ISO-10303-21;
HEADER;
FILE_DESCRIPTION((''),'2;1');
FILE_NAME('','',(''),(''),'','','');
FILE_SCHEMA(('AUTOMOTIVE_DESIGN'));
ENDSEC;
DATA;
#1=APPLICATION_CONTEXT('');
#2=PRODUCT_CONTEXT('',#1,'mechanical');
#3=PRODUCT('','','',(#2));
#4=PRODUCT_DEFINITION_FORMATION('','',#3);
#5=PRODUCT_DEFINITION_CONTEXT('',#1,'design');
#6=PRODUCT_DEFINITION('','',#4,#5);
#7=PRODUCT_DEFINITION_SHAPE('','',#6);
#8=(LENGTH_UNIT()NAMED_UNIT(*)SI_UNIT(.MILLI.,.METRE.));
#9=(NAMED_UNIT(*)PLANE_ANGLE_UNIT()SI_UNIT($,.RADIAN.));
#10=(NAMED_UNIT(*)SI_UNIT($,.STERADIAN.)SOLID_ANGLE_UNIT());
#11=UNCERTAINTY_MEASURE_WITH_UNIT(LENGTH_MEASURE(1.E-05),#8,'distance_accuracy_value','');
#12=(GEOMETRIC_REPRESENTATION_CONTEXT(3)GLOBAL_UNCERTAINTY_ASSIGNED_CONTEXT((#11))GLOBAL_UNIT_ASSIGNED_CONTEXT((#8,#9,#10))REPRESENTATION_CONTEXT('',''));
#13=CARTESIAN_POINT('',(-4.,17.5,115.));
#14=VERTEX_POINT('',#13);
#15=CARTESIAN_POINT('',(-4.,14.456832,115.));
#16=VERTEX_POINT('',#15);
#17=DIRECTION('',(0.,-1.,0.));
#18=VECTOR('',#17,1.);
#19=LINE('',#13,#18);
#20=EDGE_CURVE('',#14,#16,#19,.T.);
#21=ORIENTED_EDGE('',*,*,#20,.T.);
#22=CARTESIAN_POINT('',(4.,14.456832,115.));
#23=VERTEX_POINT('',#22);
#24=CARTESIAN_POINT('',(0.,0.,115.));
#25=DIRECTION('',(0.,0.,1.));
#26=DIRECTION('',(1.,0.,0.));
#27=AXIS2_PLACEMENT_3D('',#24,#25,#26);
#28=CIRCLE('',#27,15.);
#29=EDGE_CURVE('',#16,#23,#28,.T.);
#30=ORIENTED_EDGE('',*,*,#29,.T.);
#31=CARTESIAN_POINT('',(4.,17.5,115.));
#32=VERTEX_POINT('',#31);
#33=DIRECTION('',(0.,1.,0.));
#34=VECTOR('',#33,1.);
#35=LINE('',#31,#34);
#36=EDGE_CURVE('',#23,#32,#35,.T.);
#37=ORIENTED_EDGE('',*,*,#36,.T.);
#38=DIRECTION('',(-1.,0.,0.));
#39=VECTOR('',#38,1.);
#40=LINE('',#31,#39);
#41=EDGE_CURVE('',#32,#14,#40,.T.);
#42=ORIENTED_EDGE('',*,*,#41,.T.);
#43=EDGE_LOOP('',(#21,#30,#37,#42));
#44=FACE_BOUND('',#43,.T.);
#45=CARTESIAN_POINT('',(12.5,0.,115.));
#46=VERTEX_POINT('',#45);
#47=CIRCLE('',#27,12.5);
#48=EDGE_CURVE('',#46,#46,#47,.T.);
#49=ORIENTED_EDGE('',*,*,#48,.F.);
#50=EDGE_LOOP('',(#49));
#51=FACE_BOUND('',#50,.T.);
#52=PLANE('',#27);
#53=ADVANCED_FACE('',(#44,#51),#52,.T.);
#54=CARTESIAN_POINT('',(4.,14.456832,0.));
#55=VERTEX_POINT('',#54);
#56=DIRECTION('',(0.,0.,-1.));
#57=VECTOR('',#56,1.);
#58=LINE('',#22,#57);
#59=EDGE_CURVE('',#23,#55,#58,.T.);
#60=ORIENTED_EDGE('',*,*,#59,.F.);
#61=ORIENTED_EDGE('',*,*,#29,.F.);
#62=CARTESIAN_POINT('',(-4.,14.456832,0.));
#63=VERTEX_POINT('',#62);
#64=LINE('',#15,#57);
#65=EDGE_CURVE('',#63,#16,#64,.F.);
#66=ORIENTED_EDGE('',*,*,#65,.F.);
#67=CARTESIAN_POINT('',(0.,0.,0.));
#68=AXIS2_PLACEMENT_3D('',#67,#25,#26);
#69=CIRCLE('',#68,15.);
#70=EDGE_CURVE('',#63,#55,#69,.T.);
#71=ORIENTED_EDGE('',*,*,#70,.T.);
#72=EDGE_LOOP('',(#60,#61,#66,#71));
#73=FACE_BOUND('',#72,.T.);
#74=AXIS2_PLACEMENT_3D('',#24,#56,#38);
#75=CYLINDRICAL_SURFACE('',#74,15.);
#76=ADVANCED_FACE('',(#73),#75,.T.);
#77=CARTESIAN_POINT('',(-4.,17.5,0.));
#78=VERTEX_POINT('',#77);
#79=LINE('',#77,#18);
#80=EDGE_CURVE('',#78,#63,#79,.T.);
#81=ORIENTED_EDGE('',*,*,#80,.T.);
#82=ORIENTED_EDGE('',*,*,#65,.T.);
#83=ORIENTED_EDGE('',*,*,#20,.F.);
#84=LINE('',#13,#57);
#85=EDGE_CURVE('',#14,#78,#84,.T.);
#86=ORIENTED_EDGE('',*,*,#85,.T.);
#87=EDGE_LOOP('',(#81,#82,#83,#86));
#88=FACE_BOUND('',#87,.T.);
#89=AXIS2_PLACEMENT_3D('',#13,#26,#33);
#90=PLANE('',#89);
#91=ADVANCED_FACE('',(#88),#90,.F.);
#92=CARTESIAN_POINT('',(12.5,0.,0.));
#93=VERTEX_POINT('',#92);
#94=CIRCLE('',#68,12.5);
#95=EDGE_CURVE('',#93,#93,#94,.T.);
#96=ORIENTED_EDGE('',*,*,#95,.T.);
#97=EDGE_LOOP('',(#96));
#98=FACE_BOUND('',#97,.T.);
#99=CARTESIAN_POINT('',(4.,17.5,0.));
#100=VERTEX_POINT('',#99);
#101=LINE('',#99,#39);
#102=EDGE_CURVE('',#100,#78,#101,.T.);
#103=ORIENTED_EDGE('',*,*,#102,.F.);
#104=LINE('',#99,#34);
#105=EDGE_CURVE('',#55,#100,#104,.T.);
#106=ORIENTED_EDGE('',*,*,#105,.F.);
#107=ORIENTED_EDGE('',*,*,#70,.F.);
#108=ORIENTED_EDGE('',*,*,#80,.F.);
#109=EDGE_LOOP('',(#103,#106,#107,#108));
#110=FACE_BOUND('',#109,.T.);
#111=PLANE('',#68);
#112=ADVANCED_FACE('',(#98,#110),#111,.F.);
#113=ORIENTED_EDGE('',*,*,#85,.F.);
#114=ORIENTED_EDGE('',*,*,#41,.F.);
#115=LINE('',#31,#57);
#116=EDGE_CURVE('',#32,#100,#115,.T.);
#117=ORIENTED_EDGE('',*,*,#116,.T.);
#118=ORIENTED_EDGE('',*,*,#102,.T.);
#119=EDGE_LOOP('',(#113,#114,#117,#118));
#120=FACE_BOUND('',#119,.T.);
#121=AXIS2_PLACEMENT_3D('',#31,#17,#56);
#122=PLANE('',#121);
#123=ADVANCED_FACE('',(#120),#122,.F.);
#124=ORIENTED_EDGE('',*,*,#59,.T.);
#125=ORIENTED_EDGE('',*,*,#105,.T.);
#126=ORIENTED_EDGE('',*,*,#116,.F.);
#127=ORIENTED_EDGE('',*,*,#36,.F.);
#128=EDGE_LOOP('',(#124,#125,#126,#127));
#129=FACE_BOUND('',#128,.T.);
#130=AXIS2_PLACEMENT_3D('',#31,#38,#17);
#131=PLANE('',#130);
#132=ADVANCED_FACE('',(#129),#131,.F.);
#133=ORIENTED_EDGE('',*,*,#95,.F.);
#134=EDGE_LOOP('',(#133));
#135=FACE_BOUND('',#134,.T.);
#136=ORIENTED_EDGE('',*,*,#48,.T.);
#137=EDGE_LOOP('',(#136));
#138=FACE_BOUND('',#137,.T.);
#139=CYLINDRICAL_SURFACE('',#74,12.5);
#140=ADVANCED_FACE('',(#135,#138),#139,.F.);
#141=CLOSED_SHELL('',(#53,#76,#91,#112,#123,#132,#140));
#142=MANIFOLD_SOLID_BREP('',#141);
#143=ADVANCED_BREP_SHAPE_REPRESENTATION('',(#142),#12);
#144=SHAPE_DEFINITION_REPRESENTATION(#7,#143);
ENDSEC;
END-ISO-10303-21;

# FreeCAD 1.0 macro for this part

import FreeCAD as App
import Part
import Sketcher

V = App.Vector


def add_polygon(sketch, points):
    """Adds a closed chain of lines whose ends are joined by coincident constraints."""
    first, n = sketch.GeometryCount, len(points)
    for a, b in zip(points, points[1:] + points[:1]):
        sketch.addGeometry(Part.LineSegment(App.Vector(*a, 0), App.Vector(*b, 0)), False)
    for i in range(n):
        sketch.addConstraint(Sketcher.Constraint("Coincident", first + i, 2, first + (i + 1) % n, 1))

doc = App.newDocument("Part")
params = doc.addObject("Spreadsheet::Sheet", "Params")
for row, (alias, value) in enumerate([
    ("sketch1_diameter", "30 mm"),
    ("sketch1_diameter2", "25 mm"),
    ("pad1_length", "115 mm"),
    ("sketch2_width", "8 mm"),
    ("sketch2_height", "5 mm"),
    ("pad2_length", "115 mm"),
], start=1):
    params.set(f"A{row}", alias)
    params.set(f"B{row}", "=" + value)
    params.setAlias(f"B{row}", alias)

body = doc.addObject("PartDesign::Body", "Body")

sketch1 = doc.addObject("Sketcher::SketchObject", "Sketch")
body.addObject(sketch1)
sketch1.AttachmentSupport = (doc.XY_Plane, [""])
sketch1.MapMode = "FlatFace"
sketch1.addGeometry(Part.Circle(V(0, 0, 0), V(0, 0, 1), 15), False)
sketch1.addGeometry(Part.Circle(V(0, 0, 0), V(0, 0, 1), 12), False)
sketch1.addConstraint(Sketcher.Constraint("Coincident", 0, 3, -1, 1))
sketch1.addConstraint(Sketcher.Constraint("Coincident", 1, 3, -1, 1))
sketch1.addConstraint(Sketcher.Constraint("Diameter", 0, 30.0))
sketch1.addConstraint(Sketcher.Constraint("Diameter", 1, 25.0))
sketch1.setExpression("Constraints[2]", "Params.sketch1_diameter")
sketch1.setExpression("Constraints[3]", "Params.sketch1_diameter2")
pad1 = doc.addObject("PartDesign::Pad", "Pad")
body.addObject(pad1)
pad1.Profile = sketch1
pad1.setExpression("Length", "Params.pad1_length")

sketch2 = doc.addObject("Sketcher::SketchObject", "Sketch001")
body.addObject(sketch2)
sketch2.AttachmentSupport = (doc.XY_Plane, [""])
sketch2.MapMode = "FlatFace"
add_polygon(sketch2, [(-4, 18), (-4, 12), (4, 12), (4, 18)])
sketch2.addConstraint(Sketcher.Constraint("Vertical", 0))
sketch2.addConstraint(Sketcher.Constraint("Horizontal", 1))
sketch2.addConstraint(Sketcher.Constraint("Vertical", 2))
sketch2.addConstraint(Sketcher.Constraint("Horizontal", 3))
sketch2.addConstraint(Sketcher.Constraint("DistanceX", 1, 1, 1, 2, 8.0))
sketch2.addConstraint(Sketcher.Constraint("DistanceY", 0, 2, 0, 1, 5.0))
sketch2.addConstraint(Sketcher.Constraint("DistanceX", 0, 2, -1, 1, 4.0))
sketch2.addConstraint(Sketcher.Constraint("DistanceY", -1, 1, 0, 2, 12.5))
sketch2.setExpression("Constraints[8]", "Params.sketch2_width")
sketch2.setExpression("Constraints[9]", "Params.sketch2_height")
pad2 = doc.addObject("PartDesign::Pad", "Pad001")
body.addObject(pad2)
pad2.Profile = sketch2
pad2.setExpression("Length", "Params.pad2_length")

doc.recompute()
